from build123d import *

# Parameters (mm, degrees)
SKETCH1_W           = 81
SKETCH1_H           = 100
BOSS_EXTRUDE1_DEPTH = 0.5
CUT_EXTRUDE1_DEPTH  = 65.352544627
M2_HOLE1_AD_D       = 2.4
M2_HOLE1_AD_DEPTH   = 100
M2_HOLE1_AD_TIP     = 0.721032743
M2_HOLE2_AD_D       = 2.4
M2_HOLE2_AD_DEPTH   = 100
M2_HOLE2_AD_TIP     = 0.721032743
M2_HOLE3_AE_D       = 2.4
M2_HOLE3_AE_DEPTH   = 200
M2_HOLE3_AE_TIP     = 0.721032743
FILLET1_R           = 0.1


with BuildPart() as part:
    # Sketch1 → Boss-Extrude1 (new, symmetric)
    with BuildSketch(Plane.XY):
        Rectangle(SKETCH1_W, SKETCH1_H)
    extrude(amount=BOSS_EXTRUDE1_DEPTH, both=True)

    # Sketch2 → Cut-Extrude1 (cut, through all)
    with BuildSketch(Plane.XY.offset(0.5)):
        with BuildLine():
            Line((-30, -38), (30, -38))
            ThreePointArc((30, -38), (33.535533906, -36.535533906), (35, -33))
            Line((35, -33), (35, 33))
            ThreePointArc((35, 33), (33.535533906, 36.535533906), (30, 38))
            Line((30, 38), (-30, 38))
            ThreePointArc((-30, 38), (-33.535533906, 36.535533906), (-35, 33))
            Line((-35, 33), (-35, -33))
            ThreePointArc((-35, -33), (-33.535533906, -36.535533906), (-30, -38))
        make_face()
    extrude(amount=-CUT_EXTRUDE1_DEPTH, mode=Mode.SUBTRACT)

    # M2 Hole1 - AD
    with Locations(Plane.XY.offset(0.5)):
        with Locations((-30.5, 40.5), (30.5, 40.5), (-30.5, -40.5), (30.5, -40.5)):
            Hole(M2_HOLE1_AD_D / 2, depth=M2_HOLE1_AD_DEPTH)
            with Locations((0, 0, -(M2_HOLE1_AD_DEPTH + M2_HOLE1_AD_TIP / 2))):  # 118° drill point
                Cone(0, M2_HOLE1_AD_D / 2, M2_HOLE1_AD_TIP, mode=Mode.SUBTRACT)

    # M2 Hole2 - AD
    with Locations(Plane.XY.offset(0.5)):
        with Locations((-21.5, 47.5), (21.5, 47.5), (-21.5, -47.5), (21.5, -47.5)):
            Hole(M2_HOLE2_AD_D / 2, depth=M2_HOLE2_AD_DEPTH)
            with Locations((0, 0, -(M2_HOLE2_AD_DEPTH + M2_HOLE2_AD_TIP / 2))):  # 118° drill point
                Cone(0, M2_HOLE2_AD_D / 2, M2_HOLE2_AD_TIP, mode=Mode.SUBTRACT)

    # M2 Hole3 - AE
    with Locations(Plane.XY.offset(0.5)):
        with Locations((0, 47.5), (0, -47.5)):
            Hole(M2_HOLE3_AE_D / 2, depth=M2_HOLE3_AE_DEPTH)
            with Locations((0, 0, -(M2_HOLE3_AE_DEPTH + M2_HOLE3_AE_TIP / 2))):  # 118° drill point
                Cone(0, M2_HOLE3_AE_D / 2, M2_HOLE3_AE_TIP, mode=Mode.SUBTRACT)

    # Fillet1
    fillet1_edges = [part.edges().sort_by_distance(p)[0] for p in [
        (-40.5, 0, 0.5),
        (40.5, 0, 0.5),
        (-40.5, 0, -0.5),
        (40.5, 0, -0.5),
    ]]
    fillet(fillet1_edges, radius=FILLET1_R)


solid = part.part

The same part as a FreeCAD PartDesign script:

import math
import FreeCAD as App
import Part
import Sketcher


def edges_at(feature, points):
    """Names of the edges that pass closest to the given points."""
    edges = feature.Shape.Edges
    near = lambda p: min(range(len(edges)), key=lambda i: edges[i].distToShape(Part.Vertex(*p))[0])
    return sorted({f"Edge{near(p) + 1}" for p in points})


def add_polygon(sketch, points):
    """Adds a closed chain of lines whose ends are joined by coincident constraints."""
    first, n = sketch.GeometryCount, len(points)
    for a, b in zip(points, points[1:] + points[:1]):
        sketch.addGeometry(Part.LineSegment(App.Vector(*a, 0), App.Vector(*b, 0)), False)
    for i in range(n):
        sketch.addConstraint(Sketcher.Constraint("Coincident", first + i, 2, first + (i + 1) % n, 1))

doc = App.newDocument("Part")
body = doc.addObject("PartDesign::Body", "Body")

# Sketch on XY plane
sketch1 = doc.addObject("Sketcher::SketchObject", "Sketch")
body.addObject(sketch1)
sketch1.AttachmentSupport = (doc.XY_Plane, [""])
sketch1.MapMode = "FlatFace"
add_polygon(sketch1, [(-40.5, 50), (-40.5, -50), (40.5, -50), (40.5, 50)])  # lines 0-3
sketch1.addConstraint([
    Sketcher.Constraint("Vertical", 0),
    Sketcher.Constraint("Horizontal", 1),
    Sketcher.Constraint("Vertical", 2),
    Sketcher.Constraint("Horizontal", 3),
    Sketcher.Constraint("Symmetric", 0, 2, 2, 2, -1, 1),
    Sketcher.Constraint("DistanceX", 1, 1, 1, 2, 81.0),
    Sketcher.Constraint("DistanceY", 0, 2, 0, 1, 100.0),
])
pad1 = doc.addObject("PartDesign::Pad", "Pad")
body.addObject(pad1)
pad1.Profile = sketch1
pad1.Length = 1
pad1.Midplane = True

# Sketch on XY plane
sketch2 = doc.addObject("Sketcher::SketchObject", "Sketch001")
body.addObject(sketch2)
sketch2.AttachmentSupport = (doc.XY_Plane, [""])
sketch2.MapMode = "FlatFace"
sketch2.AttachmentOffset = App.Placement(App.Vector(0, 0, 0.5), App.Rotation())
sketch2.addGeometry([
    Part.LineSegment(App.Vector(-30, -38, 0), App.Vector(30, -38, 0)),  # 0
    Part.ArcOfCircle(Part.Circle(App.Vector(30, -33, 0), App.Vector(0, 0, 1), 5), math.radians(-90), math.radians(0)),  # 1
    Part.LineSegment(App.Vector(35, -33, 0), App.Vector(35, 33, 0)),  # 2
    Part.ArcOfCircle(Part.Circle(App.Vector(30, 33, 0), App.Vector(0, 0, 1), 5), math.radians(0), math.radians(90)),  # 3
    Part.LineSegment(App.Vector(30, 38, 0), App.Vector(-30, 38, 0)),  # 4
    Part.ArcOfCircle(Part.Circle(App.Vector(-30, 33, 0), App.Vector(0, 0, 1), 5), math.radians(90), math.radians(180)),  # 5
    Part.LineSegment(App.Vector(-35, 33, 0), App.Vector(-35, -33, 0)),  # 6
    Part.ArcOfCircle(Part.Circle(App.Vector(-30, -33, 0), App.Vector(0, 0, 1), 5), math.radians(180), math.radians(270)),  # 7
], False)
sketch2.addConstraint([
    Sketcher.Constraint("Tangent", 0, 2, 1, 1),
    Sketcher.Constraint("Tangent", 1, 2, 2, 1),
    Sketcher.Constraint("Tangent", 2, 2, 3, 1),
    Sketcher.Constraint("Tangent", 3, 2, 4, 1),
    Sketcher.Constraint("Tangent", 4, 2, 5, 1),
    Sketcher.Constraint("Tangent", 5, 2, 6, 1),
    Sketcher.Constraint("Tangent", 6, 2, 7, 1),
    Sketcher.Constraint("Tangent", 7, 2, 0, 1),
    Sketcher.Constraint("Horizontal", 0),
    Sketcher.Constraint("Vertical", 2),
    Sketcher.Constraint("Horizontal", 4),
    Sketcher.Constraint("Vertical", 6),
    Sketcher.Constraint("Equal", 1, 3),
    Sketcher.Constraint("Equal", 3, 5),
    Sketcher.Constraint("Equal", 5, 7),
    Sketcher.Constraint("Symmetric", 1, 3, 5, 3, -1, 1),
    Sketcher.Constraint("Radius", 1, 5.0),
    Sketcher.Constraint("DistanceX", 0, 1, 0, 2, 60.0),
    Sketcher.Constraint("DistanceY", 2, 1, 2, 2, 66.0),
])
pocket1 = doc.addObject("PartDesign::Pocket", "Pocket")
body.addObject(pocket1)
pocket1.Profile = sketch2
pocket1.Type = "ThroughAll"

# Sketch on XY plane
sketch3 = doc.addObject("Sketcher::SketchObject", "Sketch002")
body.addObject(sketch3)
sketch3.AttachmentSupport = (doc.XY_Plane, [""])
sketch3.MapMode = "FlatFace"
sketch3.AttachmentOffset = App.Placement(App.Vector(0, 0, 0.5), App.Rotation())
sketch3.addGeometry([
    Part.Circle(App.Vector(-30.5, 40.5, 0), App.Vector(0, 0, 1), 1.2),
    Part.Circle(App.Vector(30.5, 40.5, 0), App.Vector(0, 0, 1), 1.2),
    Part.Circle(App.Vector(-30.5, -40.5, 0), App.Vector(0, 0, 1), 1.2),
    Part.Circle(App.Vector(30.5, -40.5, 0), App.Vector(0, 0, 1), 1.2),
], False)
sketch3.addConstraint([
    Sketcher.Constraint("Equal", 0, 1),
    Sketcher.Constraint("Equal", 1, 2),
    Sketcher.Constraint("Equal", 2, 3),
    Sketcher.Constraint("Symmetric", 1, 3, 2, 3, -1, 1),
    Sketcher.Constraint("Symmetric", 0, 3, 3, 3, -1, 1),
    Sketcher.Constraint("Symmetric", 0, 3, 1, 3, -2),
    Sketcher.Constraint("Diameter", 0, 2.4),
    Sketcher.Constraint("DistanceX", 0, 3, 1, 3, 61.0),
    Sketcher.Constraint("DistanceY", 2, 3, 0, 3, 81.0),
])
doc.recompute()
hole = doc.addObject("PartDesign::Hole", "Hole")
body.addObject(hole)
hole.Profile = sketch3
hole.ThreadType = "None"
hole.Diameter = 2.4
hole.DepthType = "Dimension"
hole.Depth = 100
hole.DrillPoint = "Angled"
hole.DrillPointAngle = 118

# Sketch on XY plane
sketch4 = doc.addObject("Sketcher::SketchObject", "Sketch003")
body.addObject(sketch4)
sketch4.AttachmentSupport = (doc.XY_Plane, [""])
sketch4.MapMode = "FlatFace"
sketch4.AttachmentOffset = App.Placement(App.Vector(0, 0, 0.5), App.Rotation())
sketch4.addGeometry([
    Part.Circle(App.Vector(-21.5, 47.5, 0), App.Vector(0, 0, 1), 1.2),
    Part.Circle(App.Vector(21.5, 47.5, 0), App.Vector(0, 0, 1), 1.2),
    Part.Circle(App.Vector(-21.5, -47.5, 0), App.Vector(0, 0, 1), 1.2),
    Part.Circle(App.Vector(21.5, -47.5, 0), App.Vector(0, 0, 1), 1.2),
], False)
sketch4.addConstraint([
    Sketcher.Constraint("Equal", 0, 1),
    Sketcher.Constraint("Equal", 1, 2),
    Sketcher.Constraint("Equal", 2, 3),
    Sketcher.Constraint("Symmetric", 1, 3, 2, 3, -1, 1),
    Sketcher.Constraint("Symmetric", 0, 3, 3, 3, -1, 1),
    Sketcher.Constraint("Symmetric", 0, 3, 1, 3, -2),
    Sketcher.Constraint("Diameter", 0, 2.4),
    Sketcher.Constraint("DistanceX", 0, 3, 1, 3, 43.0),
    Sketcher.Constraint("DistanceY", 2, 3, 0, 3, 95.0),
])
doc.recompute()
hole2 = doc.addObject("PartDesign::Hole", "Hole001")
body.addObject(hole2)
hole2.Profile = sketch4
hole2.ThreadType = "None"
hole2.Diameter = 2.4
hole2.DepthType = "Dimension"
hole2.Depth = 100
hole2.DrillPoint = "Angled"
hole2.DrillPointAngle = 118

# Sketch on XY plane
sketch5 = doc.addObject("Sketcher::SketchObject", "Sketch004")
body.addObject(sketch5)
sketch5.AttachmentSupport = (doc.XY_Plane, [""])
sketch5.MapMode = "FlatFace"
sketch5.AttachmentOffset = App.Placement(App.Vector(0, 0, 0.5), App.Rotation())
sketch5.addGeometry([
    Part.Circle(App.Vector(0, 47.5, 0), App.Vector(0, 0, 1), 1.2),
    Part.Circle(App.Vector(0, -47.5, 0), App.Vector(0, 0, 1), 1.2),
], False)
sketch5.addConstraint([
    Sketcher.Constraint("Equal", 0, 1),
    Sketcher.Constraint("Symmetric", 0, 3, 1, 3, -1, 1),
    Sketcher.Constraint("PointOnObject", 0, 3, -2),
    Sketcher.Constraint("Diameter", 0, 2.4),
    Sketcher.Constraint("DistanceY", 1, 3, 0, 3, 95.0),
])
doc.recompute()
hole3 = doc.addObject("PartDesign::Hole", "Hole002")
body.addObject(hole3)
hole3.Profile = sketch5
hole3.ThreadType = "None"
hole3.Diameter = 2.4
hole3.DepthType = "Dimension"
hole3.Depth = 200
hole3.DrillPoint = "Angled"
hole3.DrillPointAngle = 118
doc.recompute()

fillet = doc.addObject("PartDesign::Fillet", "Fillet")
body.addObject(fillet)
fillet.Base = (hole3, edges_at(hole3, [
    (-40.5, 0, 0.5),
    (40.5, 0, 0.5),
    (-40.5, 0, -0.5),
    (40.5, 0, -0.5),
]))
fillet.Radius = 0.1

doc.recompute()
